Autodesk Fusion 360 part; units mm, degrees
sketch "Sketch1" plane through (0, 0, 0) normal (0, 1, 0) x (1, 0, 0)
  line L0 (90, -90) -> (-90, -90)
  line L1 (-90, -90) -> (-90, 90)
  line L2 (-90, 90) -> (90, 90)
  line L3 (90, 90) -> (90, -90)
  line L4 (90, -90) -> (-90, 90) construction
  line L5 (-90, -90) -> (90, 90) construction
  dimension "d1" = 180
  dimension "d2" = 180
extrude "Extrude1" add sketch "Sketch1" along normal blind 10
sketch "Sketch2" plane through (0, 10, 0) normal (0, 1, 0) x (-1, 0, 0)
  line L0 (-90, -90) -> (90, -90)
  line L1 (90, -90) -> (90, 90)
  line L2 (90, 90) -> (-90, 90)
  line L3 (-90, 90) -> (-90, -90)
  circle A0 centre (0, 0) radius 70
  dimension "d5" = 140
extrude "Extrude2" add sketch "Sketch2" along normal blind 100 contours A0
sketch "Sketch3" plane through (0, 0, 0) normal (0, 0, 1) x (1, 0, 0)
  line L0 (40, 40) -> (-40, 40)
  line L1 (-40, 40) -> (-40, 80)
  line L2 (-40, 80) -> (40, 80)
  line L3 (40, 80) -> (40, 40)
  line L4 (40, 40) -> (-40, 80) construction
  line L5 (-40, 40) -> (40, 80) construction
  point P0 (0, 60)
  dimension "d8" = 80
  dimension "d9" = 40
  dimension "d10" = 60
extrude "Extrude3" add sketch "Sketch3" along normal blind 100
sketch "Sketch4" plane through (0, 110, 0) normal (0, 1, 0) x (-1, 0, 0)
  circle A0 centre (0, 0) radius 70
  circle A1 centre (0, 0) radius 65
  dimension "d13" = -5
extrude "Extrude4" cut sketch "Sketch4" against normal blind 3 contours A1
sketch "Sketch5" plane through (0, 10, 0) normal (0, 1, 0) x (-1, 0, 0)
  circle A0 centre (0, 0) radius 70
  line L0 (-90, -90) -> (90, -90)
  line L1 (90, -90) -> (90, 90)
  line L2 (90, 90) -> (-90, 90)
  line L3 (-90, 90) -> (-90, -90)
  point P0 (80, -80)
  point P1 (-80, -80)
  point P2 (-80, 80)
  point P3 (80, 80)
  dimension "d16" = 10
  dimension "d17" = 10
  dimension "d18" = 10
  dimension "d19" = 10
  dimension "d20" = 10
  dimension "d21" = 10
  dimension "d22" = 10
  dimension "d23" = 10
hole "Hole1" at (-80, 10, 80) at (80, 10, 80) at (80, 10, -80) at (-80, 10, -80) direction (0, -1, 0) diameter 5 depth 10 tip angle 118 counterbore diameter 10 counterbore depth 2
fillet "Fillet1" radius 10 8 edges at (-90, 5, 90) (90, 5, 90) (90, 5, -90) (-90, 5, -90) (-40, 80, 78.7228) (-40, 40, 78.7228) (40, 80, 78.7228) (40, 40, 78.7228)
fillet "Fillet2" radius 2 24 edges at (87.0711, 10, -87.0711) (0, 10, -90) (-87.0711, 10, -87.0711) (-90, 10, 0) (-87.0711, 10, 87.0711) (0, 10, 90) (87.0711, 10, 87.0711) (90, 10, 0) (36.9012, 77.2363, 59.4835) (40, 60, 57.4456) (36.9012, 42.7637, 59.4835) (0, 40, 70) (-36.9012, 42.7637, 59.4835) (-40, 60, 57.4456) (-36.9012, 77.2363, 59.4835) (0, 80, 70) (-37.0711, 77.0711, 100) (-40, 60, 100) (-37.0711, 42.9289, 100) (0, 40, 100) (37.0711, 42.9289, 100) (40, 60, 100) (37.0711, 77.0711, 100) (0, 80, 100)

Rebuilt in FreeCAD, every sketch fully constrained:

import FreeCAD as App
import Part
import Sketcher


def edges_at(feature, points):
    """Names of the edges that pass closest to the given points."""
    edges = feature.Shape.Edges
    near = lambda p: min(range(len(edges)), key=lambda i: edges[i].distToShape(Part.Vertex(*p))[0])
    return sorted({f"Edge{near(p) + 1}" for p in points})


def add_polygon(sketch, points):
    """Adds a closed chain of lines whose ends are joined by coincident constraints."""
    first, n = sketch.GeometryCount, len(points)
    for a, b in zip(points, points[1:] + points[:1]):
        sketch.addGeometry(Part.LineSegment(App.Vector(*a, 0), App.Vector(*b, 0)), False)
    for i in range(n):
        sketch.addConstraint(Sketcher.Constraint("Coincident", first + i, 2, first + (i + 1) % n, 1))

doc = App.newDocument("Part")
params = doc.addObject("Spreadsheet::Sheet", "Params")
for row, (alias, value) in enumerate([
    ("sketch1_width", "180 mm"),
    ("pad1_length", "10 mm"),
    ("sketch2_diameter", "140 mm"),
    ("pad2_length", "100 mm"),
    ("sketch3_width", "80 mm"),
    ("sketch3_height", "40 mm"),
    ("pad3_length", "100 mm"),
    ("sketch4_diameter", "130 mm"),
    ("pocket1_length", "3 mm"),
    ("sketch5_diameter", "5 mm"),
    ("hole_diameter", "5 mm"),
    ("hole_depth", "10 mm"),
    ("hole_cbore_diameter", "10 mm"),
    ("hole_cbore_depth", "2 mm"),
    ("fillet_radius", "10 mm"),
    ("fillet2_radius", "2 mm"),
], start=1):
    params.set(f"A{row}", alias)
    params.set(f"B{row}", "=" + value)
    params.setAlias(f"B{row}", alias)

body = doc.addObject("PartDesign::Body", "Body")

# Sketch on XZ plane
sketch1 = body.newObject("Sketcher::SketchObject", "Sketch")
sketch1.AttachmentSupport = (doc.getObject("XZ_Plane"), [""])
sketch1.MapMode = "FlatFace"
add_polygon(sketch1, [(-90, 90), (90, 90), (90, -90), (-90, -90)])  # lines 0-3
sketch1.addConstraint(Sketcher.Constraint("Horizontal", 0))
sketch1.addConstraint(Sketcher.Constraint("Vertical", 1))
sketch1.addConstraint(Sketcher.Constraint("Horizontal", 2))
sketch1.addConstraint(Sketcher.Constraint("Vertical", 3))
sketch1.addConstraint(Sketcher.Constraint("Symmetric", 0, 2, 2, 2, -1, 1))
sketch1.addConstraint(Sketcher.Constraint("Equal", 2, 1))
sketch1.addConstraint(Sketcher.Constraint("DistanceX", 0, 1, 0, 2, 180.0))
sketch1.setExpression("Constraints[10]", "Params.sketch1_width")
pad1 = body.newObject("PartDesign::Pad", "Pad")
pad1.Profile = sketch1
pad1.setExpression("Length", "Params.pad1_length")
pad1.Reversed = True

# Sketch on XZ plane
sketch2 = body.newObject("Sketcher::SketchObject", "Sketch001")
sketch2.AttachmentSupport = (doc.getObject("XZ_Plane"), [""])
sketch2.MapMode = "FlatFace"
sketch2.AttachmentOffset = App.Placement(App.Vector(0, 0, -10), App.Rotation())
sketch2.addGeometry(Part.Circle(App.Vector(0, 0, 0), App.Vector(0, 0, 1), 70), False)
sketch2.addConstraint(Sketcher.Constraint("Coincident", 0, 3, -1, 1))
sketch2.addConstraint(Sketcher.Constraint("Diameter", 0, 140.0))
sketch2.setExpression("Constraints[1]", "Params.sketch2_diameter")
pad2 = body.newObject("PartDesign::Pad", "Pad001")
pad2.Profile = sketch2
pad2.setExpression("Length", "Params.pad2_length")
pad2.Reversed = True

# Sketch on XY plane
sketch3 = body.newObject("Sketcher::SketchObject", "Sketch002")
sketch3.AttachmentSupport = (doc.getObject("XY_Plane"), [""])
sketch3.MapMode = "FlatFace"
add_polygon(sketch3, [(-40, 40), (40, 40), (40, 80), (-40, 80)])  # lines 0-3
sketch3.addConstraint(Sketcher.Constraint("Horizontal", 0))
sketch3.addConstraint(Sketcher.Constraint("Vertical", 1))
sketch3.addConstraint(Sketcher.Constraint("Horizontal", 2))
sketch3.addConstraint(Sketcher.Constraint("Vertical", 3))
sketch3.addConstraint(Sketcher.Constraint("DistanceX", 0, 1, 0, 2, 80.0))
sketch3.addConstraint(Sketcher.Constraint("DistanceY", 1, 1, 1, 2, 40.0))
sketch3.addConstraint(Sketcher.Constraint("DistanceX", -1, 1, 0, 2, 40.0))
sketch3.addConstraint(Sketcher.Constraint("DistanceY", -1, 1, 0, 2, 40.0))
sketch3.setExpression("Constraints[8]", "Params.sketch3_width")
sketch3.setExpression("Constraints[9]", "Params.sketch3_height")
pad3 = body.newObject("PartDesign::Pad", "Pad002")
pad3.Profile = sketch3
pad3.setExpression("Length", "Params.pad3_length")

# Sketch on XZ plane
sketch4 = body.newObject("Sketcher::SketchObject", "Sketch003")
sketch4.AttachmentSupport = (doc.getObject("XZ_Plane"), [""])
sketch4.MapMode = "FlatFace"
sketch4.AttachmentOffset = App.Placement(App.Vector(0, 0, -110), App.Rotation())
sketch4.addGeometry(Part.Circle(App.Vector(0, 0, 0), App.Vector(0, 0, 1), 65), False)
sketch4.addConstraint(Sketcher.Constraint("Coincident", 0, 3, -1, 1))
sketch4.addConstraint(Sketcher.Constraint("Diameter", 0, 130.0))
sketch4.setExpression("Constraints[1]", "Params.sketch4_diameter")
pocket1 = body.newObject("PartDesign::Pocket", "Pocket")
pocket1.Profile = sketch4
pocket1.setExpression("Length", "Params.pocket1_length")
pocket1.Reversed = True

# Sketch on XZ plane
sketch5 = body.newObject("Sketcher::SketchObject", "Sketch004")
sketch5.AttachmentSupport = (doc.getObject("XZ_Plane"), [""])
sketch5.MapMode = "FlatFace"
sketch5.AttachmentOffset = App.Placement(App.Vector(0, 0, -10), App.Rotation())
sketch5.addGeometry(Part.Circle(App.Vector(-80, 80, 0), App.Vector(0, 0, 1), 2.5), False)
sketch5.addGeometry(Part.Circle(App.Vector(80, 80, 0), App.Vector(0, 0, 1), 2.5), False)
sketch5.addGeometry(Part.Circle(App.Vector(80, -80, 0), App.Vector(0, 0, 1), 2.5), False)
sketch5.addGeometry(Part.Circle(App.Vector(-80, -80, 0), App.Vector(0, 0, 1), 2.5), False)
sketch5.addConstraint(Sketcher.Constraint("Equal", 0, 1))
sketch5.addConstraint(Sketcher.Constraint("Equal", 1, 2))
sketch5.addConstraint(Sketcher.Constraint("Equal", 2, 3))
sketch5.addConstraint(Sketcher.Constraint("Symmetric", 0, 3, 2, 3, -1, 1))
sketch5.addConstraint(Sketcher.Constraint("Symmetric", 1, 3, 3, 3, -1, 1))
sketch5.addConstraint(Sketcher.Constraint("Symmetric", 0, 3, 1, 3, -2))
sketch5.addConstraint(Sketcher.Constraint("Diameter", 0, 5.0))
sketch5.addConstraint(Sketcher.Constraint("DistanceX", 0, 3, -1, 1, 80.0))
sketch5.addConstraint(Sketcher.Constraint("DistanceY", -1, 1, 0, 3, 80.0))
sketch5.setExpression("Constraints[6]", "Params.sketch5_diameter")
doc.recompute()
hole = body.newObject("PartDesign::Hole", "Hole")
hole.Profile = sketch5
hole.ThreadType = "None"
hole.setExpression("Diameter", "Params.hole_diameter")
hole.DepthType = "Dimension"
hole.setExpression("Depth", "Params.hole_depth")
hole.DrillPoint = "Angled"
hole.DrillPointAngle = 118
hole.HoleCutType = "Counterbore"
hole.setExpression("HoleCutDiameter", "Params.hole_cbore_diameter")
hole.setExpression("HoleCutDepth", "Params.hole_cbore_depth")
hole.Reversed = True
doc.recompute()

fillet = body.newObject("PartDesign::Fillet", "Fillet")
fillet.Base = (hole, edges_at(hole, [
    (-90, 5, 90),
    (90, 5, 90),
    (90, 5, -90),
    (-90, 5, -90),
    (-40, 80, 78.723),
    (-40, 40, 78.723),
    (40, 80, 78.723),
    (40, 40, 78.723),
]))
fillet.setExpression("Radius", "Params.fillet_radius")
doc.recompute()

fillet2 = body.newObject("PartDesign::Fillet", "Fillet001")
fillet2.Base = (fillet, edges_at(fillet, [
    (87.071, 10, -87.071),
    (0, 10, -90),
    (-87.071, 10, -87.071),
    (-90, 10, 0),
    (-87.071, 10, 87.071),
    (0, 10, 90),
    (87.071, 10, 87.071),
    (90, 10, 0),
    (36.901, 77.236, 59.483),
    (40, 60, 57.446),
    (36.901, 42.764, 59.483),
    (0, 40, 70),
    (-36.901, 42.764, 59.483),
    (-40, 60, 57.446),
    (-36.901, 77.236, 59.483),
    (0, 80, 70),
    (-37.071, 77.071, 100),
    (-40, 60, 100),
    (-37.071, 42.929, 100),
    (0, 40, 100),
    (37.071, 42.929, 100),
    (40, 60, 100),
    (37.071, 77.071, 100),
    (0, 80, 100),
]))
fillet2.setExpression("Radius", "Params.fillet2_radius")

doc.recompute()
